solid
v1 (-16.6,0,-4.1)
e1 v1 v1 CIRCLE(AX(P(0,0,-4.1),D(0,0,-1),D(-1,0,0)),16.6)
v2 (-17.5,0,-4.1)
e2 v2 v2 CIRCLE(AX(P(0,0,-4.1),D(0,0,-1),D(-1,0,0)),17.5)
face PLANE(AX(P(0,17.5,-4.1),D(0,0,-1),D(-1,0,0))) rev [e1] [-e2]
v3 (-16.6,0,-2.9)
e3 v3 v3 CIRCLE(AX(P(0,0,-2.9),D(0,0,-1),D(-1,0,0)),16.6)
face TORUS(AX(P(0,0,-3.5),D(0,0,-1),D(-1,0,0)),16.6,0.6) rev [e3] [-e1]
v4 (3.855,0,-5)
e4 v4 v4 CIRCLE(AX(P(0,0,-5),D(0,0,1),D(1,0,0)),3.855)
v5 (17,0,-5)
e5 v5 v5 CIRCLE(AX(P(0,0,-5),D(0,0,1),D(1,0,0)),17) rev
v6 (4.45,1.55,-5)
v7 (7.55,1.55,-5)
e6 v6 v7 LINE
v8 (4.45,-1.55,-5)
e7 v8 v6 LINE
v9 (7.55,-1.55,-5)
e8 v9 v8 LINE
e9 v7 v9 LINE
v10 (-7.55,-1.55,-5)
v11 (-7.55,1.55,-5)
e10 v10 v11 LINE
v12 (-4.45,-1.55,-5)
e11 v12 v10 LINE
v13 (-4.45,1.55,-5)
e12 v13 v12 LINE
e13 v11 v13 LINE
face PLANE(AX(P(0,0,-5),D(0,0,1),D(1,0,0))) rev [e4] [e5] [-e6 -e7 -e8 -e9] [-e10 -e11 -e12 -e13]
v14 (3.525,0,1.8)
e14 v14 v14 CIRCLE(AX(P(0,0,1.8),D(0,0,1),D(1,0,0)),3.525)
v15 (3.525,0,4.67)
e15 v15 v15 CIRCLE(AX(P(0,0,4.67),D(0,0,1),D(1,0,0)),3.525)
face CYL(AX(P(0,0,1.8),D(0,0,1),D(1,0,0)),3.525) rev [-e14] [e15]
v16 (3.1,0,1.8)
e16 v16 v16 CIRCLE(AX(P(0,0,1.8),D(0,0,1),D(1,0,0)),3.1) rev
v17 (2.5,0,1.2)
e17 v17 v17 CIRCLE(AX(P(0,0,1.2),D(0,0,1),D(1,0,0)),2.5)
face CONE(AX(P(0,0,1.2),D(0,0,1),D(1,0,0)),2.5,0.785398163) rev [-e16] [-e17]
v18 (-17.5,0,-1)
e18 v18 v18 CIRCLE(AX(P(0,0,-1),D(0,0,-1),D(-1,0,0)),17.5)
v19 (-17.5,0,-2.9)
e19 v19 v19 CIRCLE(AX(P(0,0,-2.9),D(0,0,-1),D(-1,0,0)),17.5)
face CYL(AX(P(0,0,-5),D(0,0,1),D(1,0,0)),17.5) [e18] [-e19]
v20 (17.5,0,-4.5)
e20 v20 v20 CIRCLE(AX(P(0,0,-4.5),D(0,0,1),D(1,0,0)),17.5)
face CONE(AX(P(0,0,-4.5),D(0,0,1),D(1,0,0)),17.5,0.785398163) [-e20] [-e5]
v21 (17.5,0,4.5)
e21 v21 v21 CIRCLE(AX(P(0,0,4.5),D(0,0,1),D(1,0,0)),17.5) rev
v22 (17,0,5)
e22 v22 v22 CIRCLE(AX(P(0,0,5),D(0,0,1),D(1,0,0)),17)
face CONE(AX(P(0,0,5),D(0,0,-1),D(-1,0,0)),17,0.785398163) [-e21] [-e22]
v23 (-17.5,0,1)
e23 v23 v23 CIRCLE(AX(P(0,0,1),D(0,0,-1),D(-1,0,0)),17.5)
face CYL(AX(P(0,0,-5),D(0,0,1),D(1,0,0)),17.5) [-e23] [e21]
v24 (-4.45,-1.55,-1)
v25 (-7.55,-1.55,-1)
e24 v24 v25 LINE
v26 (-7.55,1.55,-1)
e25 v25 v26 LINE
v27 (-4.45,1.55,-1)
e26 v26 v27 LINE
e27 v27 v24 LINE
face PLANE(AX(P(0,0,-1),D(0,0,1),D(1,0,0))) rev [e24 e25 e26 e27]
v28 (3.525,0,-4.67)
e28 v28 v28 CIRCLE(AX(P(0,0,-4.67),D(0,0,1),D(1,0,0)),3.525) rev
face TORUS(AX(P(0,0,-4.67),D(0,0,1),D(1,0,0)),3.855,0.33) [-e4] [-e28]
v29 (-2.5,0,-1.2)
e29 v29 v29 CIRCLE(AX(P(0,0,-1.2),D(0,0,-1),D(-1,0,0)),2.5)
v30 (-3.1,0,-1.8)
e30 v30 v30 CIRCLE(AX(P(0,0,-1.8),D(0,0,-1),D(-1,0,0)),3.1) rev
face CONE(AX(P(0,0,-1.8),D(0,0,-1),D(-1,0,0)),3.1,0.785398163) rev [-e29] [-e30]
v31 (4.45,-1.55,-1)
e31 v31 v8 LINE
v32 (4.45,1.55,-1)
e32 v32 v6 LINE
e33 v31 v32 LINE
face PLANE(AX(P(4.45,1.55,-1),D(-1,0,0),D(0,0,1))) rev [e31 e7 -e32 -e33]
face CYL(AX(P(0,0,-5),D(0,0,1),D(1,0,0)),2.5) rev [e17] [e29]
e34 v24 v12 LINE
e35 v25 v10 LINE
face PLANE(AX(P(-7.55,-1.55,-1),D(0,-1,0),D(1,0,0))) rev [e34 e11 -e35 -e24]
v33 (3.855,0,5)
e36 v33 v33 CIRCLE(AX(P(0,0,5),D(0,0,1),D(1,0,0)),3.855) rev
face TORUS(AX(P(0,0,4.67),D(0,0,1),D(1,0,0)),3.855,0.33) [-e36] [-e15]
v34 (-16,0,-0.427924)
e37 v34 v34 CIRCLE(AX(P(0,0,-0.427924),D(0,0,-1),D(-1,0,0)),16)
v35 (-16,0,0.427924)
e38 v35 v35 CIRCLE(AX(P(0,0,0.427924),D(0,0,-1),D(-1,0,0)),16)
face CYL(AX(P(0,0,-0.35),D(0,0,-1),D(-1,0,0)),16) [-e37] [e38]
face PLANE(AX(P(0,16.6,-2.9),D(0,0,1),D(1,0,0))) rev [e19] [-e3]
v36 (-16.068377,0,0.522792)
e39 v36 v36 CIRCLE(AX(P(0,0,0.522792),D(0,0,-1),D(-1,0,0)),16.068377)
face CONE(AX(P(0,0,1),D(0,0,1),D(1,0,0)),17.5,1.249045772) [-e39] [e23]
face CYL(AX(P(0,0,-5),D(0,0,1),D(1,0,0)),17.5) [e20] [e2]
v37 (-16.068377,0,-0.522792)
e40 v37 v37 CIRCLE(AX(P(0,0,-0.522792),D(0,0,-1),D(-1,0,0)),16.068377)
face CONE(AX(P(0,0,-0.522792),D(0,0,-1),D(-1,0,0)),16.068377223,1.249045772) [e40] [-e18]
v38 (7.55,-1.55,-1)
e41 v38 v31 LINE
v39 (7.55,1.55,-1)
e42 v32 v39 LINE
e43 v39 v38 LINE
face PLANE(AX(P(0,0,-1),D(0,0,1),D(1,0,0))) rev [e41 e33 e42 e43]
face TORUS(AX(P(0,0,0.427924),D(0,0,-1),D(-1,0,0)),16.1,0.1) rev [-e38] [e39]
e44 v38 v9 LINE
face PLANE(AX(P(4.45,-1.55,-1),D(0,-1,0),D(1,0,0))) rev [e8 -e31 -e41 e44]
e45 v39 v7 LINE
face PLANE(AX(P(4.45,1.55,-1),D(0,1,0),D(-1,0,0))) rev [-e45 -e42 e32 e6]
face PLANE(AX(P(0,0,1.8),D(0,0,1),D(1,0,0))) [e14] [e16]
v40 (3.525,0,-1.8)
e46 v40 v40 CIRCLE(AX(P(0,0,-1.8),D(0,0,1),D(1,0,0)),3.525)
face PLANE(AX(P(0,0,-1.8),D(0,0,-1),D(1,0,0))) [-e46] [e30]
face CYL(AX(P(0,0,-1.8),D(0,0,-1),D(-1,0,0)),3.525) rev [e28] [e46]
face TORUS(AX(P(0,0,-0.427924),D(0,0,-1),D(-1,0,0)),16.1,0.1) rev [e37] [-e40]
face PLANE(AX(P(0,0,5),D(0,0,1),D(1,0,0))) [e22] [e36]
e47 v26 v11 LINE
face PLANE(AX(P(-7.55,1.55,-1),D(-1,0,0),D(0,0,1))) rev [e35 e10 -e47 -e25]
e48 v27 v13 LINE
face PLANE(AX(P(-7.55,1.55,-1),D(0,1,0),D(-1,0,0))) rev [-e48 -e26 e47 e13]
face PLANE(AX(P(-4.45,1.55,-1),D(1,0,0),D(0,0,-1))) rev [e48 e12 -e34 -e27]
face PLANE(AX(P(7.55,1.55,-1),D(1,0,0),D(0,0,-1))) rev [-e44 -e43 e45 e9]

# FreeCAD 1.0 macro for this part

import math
import FreeCAD as App
import Part
import Sketcher
from FreeCAD import Vector
Q = App.Units.Quantity


def edges_at(feature, points):
    """Names of the edges that pass closest to the given points."""
    edges = feature.Shape.Edges
    near = lambda p: min(range(len(edges)), key=lambda i: edges[i].distToShape(Part.Vertex(*p))[0])
    return sorted({f"Edge{near(p) + 1}" for p in points})

doc = App.newDocument("Part")
body = doc.addObject("PartDesign::Body", "Body")

sketch1 = body.newObject("Sketcher::SketchObject", "Sketch")
sketch1.AttachmentSupport = (doc.getObject("XY_Plane"), [""])
sketch1.MapMode = "FlatFace"
sketch1.addGeometry(Part.Circle(Vector(0, 0, 0), Vector(0, 0, 1), 18), False)
sketch1.addConstraint(Sketcher.Constraint("Coincident", 0, 3, -1, 1))
sketch1.addConstraint(Sketcher.Constraint("Diameter", 0, Q("35 mm")))
pad1 = body.newObject("PartDesign::Pad", "Pad")
pad1.Profile = sketch1
pad1.Type = "TwoLengths"
pad1.Length = 5
pad1.Length2 = 5

sketch2 = body.newObject("Sketcher::SketchObject", "Sketch001")
sketch2.AttachmentSupport = (doc.getObject("YZ_Plane"), [""])
sketch2.MapMode = "FlatFace"
sketch2.addGeometry(Part.LineSegment(Vector(17.5, 1, 0), Vector(16.07, 0.52, 0)), False)
sketch2.addGeometry(Part.ArcOfCircle(Part.Circle(Vector(16.1, 0.43, 0), Vector(0, 0, 1), 0.1), math.radians(108), math.radians(180)), False)
sketch2.addGeometry(Part.LineSegment(Vector(16, 0.43, 0), Vector(16, -0.43, 0)), False)
sketch2.addGeometry(Part.ArcOfCircle(Part.Circle(Vector(16.1, -0.43, 0), Vector(0, 0, 1), 0.1), math.radians(180), math.radians(252)), False)
sketch2.addGeometry(Part.LineSegment(Vector(16.07, -0.52, 0), Vector(17.5, -1, 0)), False)
sketch2.addGeometry(Part.LineSegment(Vector(17.5, -1, 0), Vector(17.5, 1, 0)), False)
sketch2.addConstraint(Sketcher.Constraint("Tangent", 0, 2, 1, 1))
sketch2.addConstraint(Sketcher.Constraint("Tangent", 1, 2, 2, 1))
sketch2.addConstraint(Sketcher.Constraint("Tangent", 2, 2, 3, 1))
sketch2.addConstraint(Sketcher.Constraint("Tangent", 3, 2, 4, 1))
sketch2.addConstraint(Sketcher.Constraint("Coincident", 4, 2, 5, 1))
sketch2.addConstraint(Sketcher.Constraint("Coincident", 5, 2, 0, 1))
sketch2.addConstraint(Sketcher.Constraint("Vertical", 2))
sketch2.addConstraint(Sketcher.Constraint("Vertical", 5))
sketch2.addConstraint(Sketcher.Constraint("Equal", 1, 3))
sketch2.addConstraint(Sketcher.Constraint("Symmetric", 0, 2, 3, 2, -1))
sketch2.addConstraint(Sketcher.Constraint("Radius", 1, Q("0.1 mm")))
sketch2.addConstraint(Sketcher.Constraint("DistanceY", 5, 1, 5, 2, Q("2 mm")))
sketch2.addConstraint(Sketcher.Constraint("DistanceX", -1, 1, 1, 2, Q("16 mm")))
sketch2.addConstraint(Sketcher.Constraint("DistanceX", -1, 1, 4, 2, Q("17.5 mm")))
sketch2.addConstraint(Sketcher.Constraint("DistanceY", 2, 2, 2, 1, Q("0.855848 mm")))
groove = body.newObject("PartDesign::Groove", "Groove")
groove.Profile = sketch2
groove.ReferenceAxis = (sketch2, ["V_Axis"])
groove.Angle = 360

sketch3 = body.newObject("Sketcher::SketchObject", "Sketch002")
sketch3.AttachmentSupport = (doc.getObject("XY_Plane"), [""])
sketch3.MapMode = "FlatFace"
sketch3.AttachmentOffset = App.Placement(Vector(0, 0, 5), App.Rotation())
sketch3.addGeometry(Part.Circle(Vector(0, 0, 0), Vector(0, 0, 1), 3.5), False)
sketch3.addConstraint(Sketcher.Constraint("Coincident", 0, 3, -1, 1))
sketch3.addConstraint(Sketcher.Constraint("Diameter", 0, Q("7.05 mm")))
pocket1 = body.newObject("PartDesign::Pocket", "Pocket")
pocket1.Profile = sketch3
pocket1.Length = 3.2
doc.recompute()

chamfer = body.newObject("PartDesign::Chamfer", "Chamfer")
chamfer.Base = (pocket1, edges_at(pocket1, [(-17.5, 0, -5), (-17.5, 0, 5)]))
chamfer.Size = 0.5

sketch4 = body.newObject("Sketcher::SketchObject", "Sketch003")
sketch4.AttachmentSupport = (doc.getObject("XY_Plane"), [""])
sketch4.MapMode = "FlatFace"
sketch4.AttachmentOffset = App.Placement(Vector(0, 0, 1.8), App.Rotation())
sketch4.addGeometry(Part.Circle(Vector(0, 0, 0), Vector(0, 0, 1), 2.5), False)
sketch4.addConstraint(Sketcher.Constraint("Coincident", 0, 3, -1, 1))
sketch4.addConstraint(Sketcher.Constraint("Diameter", 0, Q("5 mm")))
pocket2 = body.newObject("PartDesign::Pocket", "Pocket001")
pocket2.Profile = sketch4
pocket2.Type = "ThroughAll"
doc.recompute()

chamfer2 = body.newObject("PartDesign::Chamfer", "Chamfer001")
chamfer2.Base = (pocket2, edges_at(pocket2, [(-2.5, 0, 1.8)]))
chamfer2.Size = 0.6
doc.recompute()

mirrored = body.newObject("PartDesign::Mirrored", "Mirrored")
mirrored.Originals = [pocket1]
mirrored.MirrorPlane = (doc.getObject("XY_Plane"), [""])
body.Tip = mirrored
doc.recompute()

chamfer3 = body.newObject("PartDesign::Chamfer", "Chamfer002")
chamfer3.Base = (mirrored, edges_at(mirrored, [(-2.5, 0, -1.8)]))
chamfer3.Size = 0.6

sketch5 = body.newObject("Sketcher::SketchObject", "Sketch004")
sketch5.AttachmentSupport = (doc.getObject("YZ_Plane"), [""])
sketch5.MapMode = "FlatFace"
sketch5.addGeometry(Part.LineSegment(Vector(17.5, -2.9, 0), Vector(16.6, -2.9, 0)), False)
sketch5.addGeometry(Part.ArcOfCircle(Part.Circle(Vector(16.6, -3.5, 0), Vector(0, 0, 1), 0.6), math.radians(90), math.radians(270)), False)
sketch5.addGeometry(Part.LineSegment(Vector(16.6, -4.1, 0), Vector(17.5, -4.1, 0)), False)
sketch5.addGeometry(Part.LineSegment(Vector(17.5, -4.1, 0), Vector(17.5, -2.9, 0)), False)
sketch5.addConstraint(Sketcher.Constraint("Tangent", 0, 2, 1, 1))
sketch5.addConstraint(Sketcher.Constraint("Tangent", 1, 2, 2, 1))
sketch5.addConstraint(Sketcher.Constraint("Coincident", 2, 2, 3, 1))
sketch5.addConstraint(Sketcher.Constraint("Coincident", 3, 2, 0, 1))
sketch5.addConstraint(Sketcher.Constraint("Horizontal", 0))
sketch5.addConstraint(Sketcher.Constraint("Horizontal", 2))
sketch5.addConstraint(Sketcher.Constraint("Vertical", 3))
sketch5.addConstraint(Sketcher.Constraint("Radius", 1, Q("0.6 mm")))
sketch5.addConstraint(Sketcher.Constraint("DistanceX", 0, 2, 0, 1, Q("0.9 mm")))
sketch5.addConstraint(Sketcher.Constraint("DistanceX", -1, 1, 1, 3, Q("16.6 mm")))
sketch5.addConstraint(Sketcher.Constraint("DistanceY", 1, 3, -1, 1, Q("3.5 mm")))
groove2 = body.newObject("PartDesign::Groove", "Groove001")
groove2.Profile = sketch5
groove2.ReferenceAxis = (sketch5, ["V_Axis"])
groove2.Angle = 360
doc.recompute()

fillet = body.newObject("PartDesign::Fillet", "Fillet")
fillet.Base = (groove2, edges_at(groove2, [(-3.525, 0, 5), (-3.525, 0, -5)]))
fillet.Radius = 0.33

sketch6 = body.newObject("Sketcher::SketchObject", "Sketch005")
sketch6.AttachmentSupport = (doc.getObject("XY_Plane"), [""])
sketch6.MapMode = "FlatFace"
sketch6.AttachmentOffset = App.Placement(Vector(0, 0, -5), App.Rotation())
sketch6.addGeometry(Part.LineSegment(Vector(7.5, 1.6, 0), Vector(7.5, -1.6, 0)), False)
sketch6.addGeometry(Part.LineSegment(Vector(7.5, -1.6, 0), Vector(4.5, -1.6, 0)), False)
sketch6.addGeometry(Part.LineSegment(Vector(4.5, -1.6, 0), Vector(4.5, 1.6, 0)), False)
sketch6.addGeometry(Part.LineSegment(Vector(4.5, 1.6, 0), Vector(7.5, 1.6, 0)), False)
sketch6.addGeometry(Part.LineSegment(Vector(-4.5, 1.6, 0), Vector(-4.5, -1.6, 0)), False)
sketch6.addGeometry(Part.LineSegment(Vector(-4.5, -1.6, 0), Vector(-7.5, -1.6, 0)), False)
sketch6.addGeometry(Part.LineSegment(Vector(-7.5, -1.6, 0), Vector(-7.5, 1.6, 0)), False)
sketch6.addGeometry(Part.LineSegment(Vector(-7.5, 1.6, 0), Vector(-4.5, 1.6, 0)), False)
sketch6.addConstraint(Sketcher.Constraint("Coincident", 0, 2, 1, 1))
sketch6.addConstraint(Sketcher.Constraint("Coincident", 1, 2, 2, 1))
sketch6.addConstraint(Sketcher.Constraint("Coincident", 2, 2, 3, 1))
sketch6.addConstraint(Sketcher.Constraint("Coincident", 3, 2, 0, 1))
sketch6.addConstraint(Sketcher.Constraint("Coincident", 4, 2, 5, 1))
sketch6.addConstraint(Sketcher.Constraint("Coincident", 5, 2, 6, 1))
sketch6.addConstraint(Sketcher.Constraint("Coincident", 6, 2, 7, 1))
sketch6.addConstraint(Sketcher.Constraint("Coincident", 7, 2, 4, 1))
sketch6.addConstraint(Sketcher.Constraint("Vertical", 0))
sketch6.addConstraint(Sketcher.Constraint("Horizontal", 1))
sketch6.addConstraint(Sketcher.Constraint("Vertical", 2))
sketch6.addConstraint(Sketcher.Constraint("Horizontal", 3))
sketch6.addConstraint(Sketcher.Constraint("Vertical", 4))
sketch6.addConstraint(Sketcher.Constraint("Horizontal", 5))
sketch6.addConstraint(Sketcher.Constraint("Vertical", 6))
sketch6.addConstraint(Sketcher.Constraint("Horizontal", 7))
sketch6.addConstraint(Sketcher.Constraint("Symmetric", 2, 2, 4, 2, -1, 1))
sketch6.addConstraint(Sketcher.Constraint("Symmetric", 0, 2, 6, 2, -1, 1))
sketch6.addConstraint(Sketcher.Constraint("Horizontal", 1, 2, 4, 2))
sketch6.addConstraint(Sketcher.Constraint("Equal", 7, 0))
sketch6.addConstraint(Sketcher.Constraint("DistanceX", 1, 2, 1, 1, Q("3.1 mm")))
sketch6.addConstraint(Sketcher.Constraint("DistanceX", 4, 2, 0, 2, Q("12 mm")))
pocket3 = body.newObject("PartDesign::Pocket", "Pocket002")
pocket3.Profile = sketch6
pocket3.Length = 4
pocket3.Reversed = True

doc.recompute()
